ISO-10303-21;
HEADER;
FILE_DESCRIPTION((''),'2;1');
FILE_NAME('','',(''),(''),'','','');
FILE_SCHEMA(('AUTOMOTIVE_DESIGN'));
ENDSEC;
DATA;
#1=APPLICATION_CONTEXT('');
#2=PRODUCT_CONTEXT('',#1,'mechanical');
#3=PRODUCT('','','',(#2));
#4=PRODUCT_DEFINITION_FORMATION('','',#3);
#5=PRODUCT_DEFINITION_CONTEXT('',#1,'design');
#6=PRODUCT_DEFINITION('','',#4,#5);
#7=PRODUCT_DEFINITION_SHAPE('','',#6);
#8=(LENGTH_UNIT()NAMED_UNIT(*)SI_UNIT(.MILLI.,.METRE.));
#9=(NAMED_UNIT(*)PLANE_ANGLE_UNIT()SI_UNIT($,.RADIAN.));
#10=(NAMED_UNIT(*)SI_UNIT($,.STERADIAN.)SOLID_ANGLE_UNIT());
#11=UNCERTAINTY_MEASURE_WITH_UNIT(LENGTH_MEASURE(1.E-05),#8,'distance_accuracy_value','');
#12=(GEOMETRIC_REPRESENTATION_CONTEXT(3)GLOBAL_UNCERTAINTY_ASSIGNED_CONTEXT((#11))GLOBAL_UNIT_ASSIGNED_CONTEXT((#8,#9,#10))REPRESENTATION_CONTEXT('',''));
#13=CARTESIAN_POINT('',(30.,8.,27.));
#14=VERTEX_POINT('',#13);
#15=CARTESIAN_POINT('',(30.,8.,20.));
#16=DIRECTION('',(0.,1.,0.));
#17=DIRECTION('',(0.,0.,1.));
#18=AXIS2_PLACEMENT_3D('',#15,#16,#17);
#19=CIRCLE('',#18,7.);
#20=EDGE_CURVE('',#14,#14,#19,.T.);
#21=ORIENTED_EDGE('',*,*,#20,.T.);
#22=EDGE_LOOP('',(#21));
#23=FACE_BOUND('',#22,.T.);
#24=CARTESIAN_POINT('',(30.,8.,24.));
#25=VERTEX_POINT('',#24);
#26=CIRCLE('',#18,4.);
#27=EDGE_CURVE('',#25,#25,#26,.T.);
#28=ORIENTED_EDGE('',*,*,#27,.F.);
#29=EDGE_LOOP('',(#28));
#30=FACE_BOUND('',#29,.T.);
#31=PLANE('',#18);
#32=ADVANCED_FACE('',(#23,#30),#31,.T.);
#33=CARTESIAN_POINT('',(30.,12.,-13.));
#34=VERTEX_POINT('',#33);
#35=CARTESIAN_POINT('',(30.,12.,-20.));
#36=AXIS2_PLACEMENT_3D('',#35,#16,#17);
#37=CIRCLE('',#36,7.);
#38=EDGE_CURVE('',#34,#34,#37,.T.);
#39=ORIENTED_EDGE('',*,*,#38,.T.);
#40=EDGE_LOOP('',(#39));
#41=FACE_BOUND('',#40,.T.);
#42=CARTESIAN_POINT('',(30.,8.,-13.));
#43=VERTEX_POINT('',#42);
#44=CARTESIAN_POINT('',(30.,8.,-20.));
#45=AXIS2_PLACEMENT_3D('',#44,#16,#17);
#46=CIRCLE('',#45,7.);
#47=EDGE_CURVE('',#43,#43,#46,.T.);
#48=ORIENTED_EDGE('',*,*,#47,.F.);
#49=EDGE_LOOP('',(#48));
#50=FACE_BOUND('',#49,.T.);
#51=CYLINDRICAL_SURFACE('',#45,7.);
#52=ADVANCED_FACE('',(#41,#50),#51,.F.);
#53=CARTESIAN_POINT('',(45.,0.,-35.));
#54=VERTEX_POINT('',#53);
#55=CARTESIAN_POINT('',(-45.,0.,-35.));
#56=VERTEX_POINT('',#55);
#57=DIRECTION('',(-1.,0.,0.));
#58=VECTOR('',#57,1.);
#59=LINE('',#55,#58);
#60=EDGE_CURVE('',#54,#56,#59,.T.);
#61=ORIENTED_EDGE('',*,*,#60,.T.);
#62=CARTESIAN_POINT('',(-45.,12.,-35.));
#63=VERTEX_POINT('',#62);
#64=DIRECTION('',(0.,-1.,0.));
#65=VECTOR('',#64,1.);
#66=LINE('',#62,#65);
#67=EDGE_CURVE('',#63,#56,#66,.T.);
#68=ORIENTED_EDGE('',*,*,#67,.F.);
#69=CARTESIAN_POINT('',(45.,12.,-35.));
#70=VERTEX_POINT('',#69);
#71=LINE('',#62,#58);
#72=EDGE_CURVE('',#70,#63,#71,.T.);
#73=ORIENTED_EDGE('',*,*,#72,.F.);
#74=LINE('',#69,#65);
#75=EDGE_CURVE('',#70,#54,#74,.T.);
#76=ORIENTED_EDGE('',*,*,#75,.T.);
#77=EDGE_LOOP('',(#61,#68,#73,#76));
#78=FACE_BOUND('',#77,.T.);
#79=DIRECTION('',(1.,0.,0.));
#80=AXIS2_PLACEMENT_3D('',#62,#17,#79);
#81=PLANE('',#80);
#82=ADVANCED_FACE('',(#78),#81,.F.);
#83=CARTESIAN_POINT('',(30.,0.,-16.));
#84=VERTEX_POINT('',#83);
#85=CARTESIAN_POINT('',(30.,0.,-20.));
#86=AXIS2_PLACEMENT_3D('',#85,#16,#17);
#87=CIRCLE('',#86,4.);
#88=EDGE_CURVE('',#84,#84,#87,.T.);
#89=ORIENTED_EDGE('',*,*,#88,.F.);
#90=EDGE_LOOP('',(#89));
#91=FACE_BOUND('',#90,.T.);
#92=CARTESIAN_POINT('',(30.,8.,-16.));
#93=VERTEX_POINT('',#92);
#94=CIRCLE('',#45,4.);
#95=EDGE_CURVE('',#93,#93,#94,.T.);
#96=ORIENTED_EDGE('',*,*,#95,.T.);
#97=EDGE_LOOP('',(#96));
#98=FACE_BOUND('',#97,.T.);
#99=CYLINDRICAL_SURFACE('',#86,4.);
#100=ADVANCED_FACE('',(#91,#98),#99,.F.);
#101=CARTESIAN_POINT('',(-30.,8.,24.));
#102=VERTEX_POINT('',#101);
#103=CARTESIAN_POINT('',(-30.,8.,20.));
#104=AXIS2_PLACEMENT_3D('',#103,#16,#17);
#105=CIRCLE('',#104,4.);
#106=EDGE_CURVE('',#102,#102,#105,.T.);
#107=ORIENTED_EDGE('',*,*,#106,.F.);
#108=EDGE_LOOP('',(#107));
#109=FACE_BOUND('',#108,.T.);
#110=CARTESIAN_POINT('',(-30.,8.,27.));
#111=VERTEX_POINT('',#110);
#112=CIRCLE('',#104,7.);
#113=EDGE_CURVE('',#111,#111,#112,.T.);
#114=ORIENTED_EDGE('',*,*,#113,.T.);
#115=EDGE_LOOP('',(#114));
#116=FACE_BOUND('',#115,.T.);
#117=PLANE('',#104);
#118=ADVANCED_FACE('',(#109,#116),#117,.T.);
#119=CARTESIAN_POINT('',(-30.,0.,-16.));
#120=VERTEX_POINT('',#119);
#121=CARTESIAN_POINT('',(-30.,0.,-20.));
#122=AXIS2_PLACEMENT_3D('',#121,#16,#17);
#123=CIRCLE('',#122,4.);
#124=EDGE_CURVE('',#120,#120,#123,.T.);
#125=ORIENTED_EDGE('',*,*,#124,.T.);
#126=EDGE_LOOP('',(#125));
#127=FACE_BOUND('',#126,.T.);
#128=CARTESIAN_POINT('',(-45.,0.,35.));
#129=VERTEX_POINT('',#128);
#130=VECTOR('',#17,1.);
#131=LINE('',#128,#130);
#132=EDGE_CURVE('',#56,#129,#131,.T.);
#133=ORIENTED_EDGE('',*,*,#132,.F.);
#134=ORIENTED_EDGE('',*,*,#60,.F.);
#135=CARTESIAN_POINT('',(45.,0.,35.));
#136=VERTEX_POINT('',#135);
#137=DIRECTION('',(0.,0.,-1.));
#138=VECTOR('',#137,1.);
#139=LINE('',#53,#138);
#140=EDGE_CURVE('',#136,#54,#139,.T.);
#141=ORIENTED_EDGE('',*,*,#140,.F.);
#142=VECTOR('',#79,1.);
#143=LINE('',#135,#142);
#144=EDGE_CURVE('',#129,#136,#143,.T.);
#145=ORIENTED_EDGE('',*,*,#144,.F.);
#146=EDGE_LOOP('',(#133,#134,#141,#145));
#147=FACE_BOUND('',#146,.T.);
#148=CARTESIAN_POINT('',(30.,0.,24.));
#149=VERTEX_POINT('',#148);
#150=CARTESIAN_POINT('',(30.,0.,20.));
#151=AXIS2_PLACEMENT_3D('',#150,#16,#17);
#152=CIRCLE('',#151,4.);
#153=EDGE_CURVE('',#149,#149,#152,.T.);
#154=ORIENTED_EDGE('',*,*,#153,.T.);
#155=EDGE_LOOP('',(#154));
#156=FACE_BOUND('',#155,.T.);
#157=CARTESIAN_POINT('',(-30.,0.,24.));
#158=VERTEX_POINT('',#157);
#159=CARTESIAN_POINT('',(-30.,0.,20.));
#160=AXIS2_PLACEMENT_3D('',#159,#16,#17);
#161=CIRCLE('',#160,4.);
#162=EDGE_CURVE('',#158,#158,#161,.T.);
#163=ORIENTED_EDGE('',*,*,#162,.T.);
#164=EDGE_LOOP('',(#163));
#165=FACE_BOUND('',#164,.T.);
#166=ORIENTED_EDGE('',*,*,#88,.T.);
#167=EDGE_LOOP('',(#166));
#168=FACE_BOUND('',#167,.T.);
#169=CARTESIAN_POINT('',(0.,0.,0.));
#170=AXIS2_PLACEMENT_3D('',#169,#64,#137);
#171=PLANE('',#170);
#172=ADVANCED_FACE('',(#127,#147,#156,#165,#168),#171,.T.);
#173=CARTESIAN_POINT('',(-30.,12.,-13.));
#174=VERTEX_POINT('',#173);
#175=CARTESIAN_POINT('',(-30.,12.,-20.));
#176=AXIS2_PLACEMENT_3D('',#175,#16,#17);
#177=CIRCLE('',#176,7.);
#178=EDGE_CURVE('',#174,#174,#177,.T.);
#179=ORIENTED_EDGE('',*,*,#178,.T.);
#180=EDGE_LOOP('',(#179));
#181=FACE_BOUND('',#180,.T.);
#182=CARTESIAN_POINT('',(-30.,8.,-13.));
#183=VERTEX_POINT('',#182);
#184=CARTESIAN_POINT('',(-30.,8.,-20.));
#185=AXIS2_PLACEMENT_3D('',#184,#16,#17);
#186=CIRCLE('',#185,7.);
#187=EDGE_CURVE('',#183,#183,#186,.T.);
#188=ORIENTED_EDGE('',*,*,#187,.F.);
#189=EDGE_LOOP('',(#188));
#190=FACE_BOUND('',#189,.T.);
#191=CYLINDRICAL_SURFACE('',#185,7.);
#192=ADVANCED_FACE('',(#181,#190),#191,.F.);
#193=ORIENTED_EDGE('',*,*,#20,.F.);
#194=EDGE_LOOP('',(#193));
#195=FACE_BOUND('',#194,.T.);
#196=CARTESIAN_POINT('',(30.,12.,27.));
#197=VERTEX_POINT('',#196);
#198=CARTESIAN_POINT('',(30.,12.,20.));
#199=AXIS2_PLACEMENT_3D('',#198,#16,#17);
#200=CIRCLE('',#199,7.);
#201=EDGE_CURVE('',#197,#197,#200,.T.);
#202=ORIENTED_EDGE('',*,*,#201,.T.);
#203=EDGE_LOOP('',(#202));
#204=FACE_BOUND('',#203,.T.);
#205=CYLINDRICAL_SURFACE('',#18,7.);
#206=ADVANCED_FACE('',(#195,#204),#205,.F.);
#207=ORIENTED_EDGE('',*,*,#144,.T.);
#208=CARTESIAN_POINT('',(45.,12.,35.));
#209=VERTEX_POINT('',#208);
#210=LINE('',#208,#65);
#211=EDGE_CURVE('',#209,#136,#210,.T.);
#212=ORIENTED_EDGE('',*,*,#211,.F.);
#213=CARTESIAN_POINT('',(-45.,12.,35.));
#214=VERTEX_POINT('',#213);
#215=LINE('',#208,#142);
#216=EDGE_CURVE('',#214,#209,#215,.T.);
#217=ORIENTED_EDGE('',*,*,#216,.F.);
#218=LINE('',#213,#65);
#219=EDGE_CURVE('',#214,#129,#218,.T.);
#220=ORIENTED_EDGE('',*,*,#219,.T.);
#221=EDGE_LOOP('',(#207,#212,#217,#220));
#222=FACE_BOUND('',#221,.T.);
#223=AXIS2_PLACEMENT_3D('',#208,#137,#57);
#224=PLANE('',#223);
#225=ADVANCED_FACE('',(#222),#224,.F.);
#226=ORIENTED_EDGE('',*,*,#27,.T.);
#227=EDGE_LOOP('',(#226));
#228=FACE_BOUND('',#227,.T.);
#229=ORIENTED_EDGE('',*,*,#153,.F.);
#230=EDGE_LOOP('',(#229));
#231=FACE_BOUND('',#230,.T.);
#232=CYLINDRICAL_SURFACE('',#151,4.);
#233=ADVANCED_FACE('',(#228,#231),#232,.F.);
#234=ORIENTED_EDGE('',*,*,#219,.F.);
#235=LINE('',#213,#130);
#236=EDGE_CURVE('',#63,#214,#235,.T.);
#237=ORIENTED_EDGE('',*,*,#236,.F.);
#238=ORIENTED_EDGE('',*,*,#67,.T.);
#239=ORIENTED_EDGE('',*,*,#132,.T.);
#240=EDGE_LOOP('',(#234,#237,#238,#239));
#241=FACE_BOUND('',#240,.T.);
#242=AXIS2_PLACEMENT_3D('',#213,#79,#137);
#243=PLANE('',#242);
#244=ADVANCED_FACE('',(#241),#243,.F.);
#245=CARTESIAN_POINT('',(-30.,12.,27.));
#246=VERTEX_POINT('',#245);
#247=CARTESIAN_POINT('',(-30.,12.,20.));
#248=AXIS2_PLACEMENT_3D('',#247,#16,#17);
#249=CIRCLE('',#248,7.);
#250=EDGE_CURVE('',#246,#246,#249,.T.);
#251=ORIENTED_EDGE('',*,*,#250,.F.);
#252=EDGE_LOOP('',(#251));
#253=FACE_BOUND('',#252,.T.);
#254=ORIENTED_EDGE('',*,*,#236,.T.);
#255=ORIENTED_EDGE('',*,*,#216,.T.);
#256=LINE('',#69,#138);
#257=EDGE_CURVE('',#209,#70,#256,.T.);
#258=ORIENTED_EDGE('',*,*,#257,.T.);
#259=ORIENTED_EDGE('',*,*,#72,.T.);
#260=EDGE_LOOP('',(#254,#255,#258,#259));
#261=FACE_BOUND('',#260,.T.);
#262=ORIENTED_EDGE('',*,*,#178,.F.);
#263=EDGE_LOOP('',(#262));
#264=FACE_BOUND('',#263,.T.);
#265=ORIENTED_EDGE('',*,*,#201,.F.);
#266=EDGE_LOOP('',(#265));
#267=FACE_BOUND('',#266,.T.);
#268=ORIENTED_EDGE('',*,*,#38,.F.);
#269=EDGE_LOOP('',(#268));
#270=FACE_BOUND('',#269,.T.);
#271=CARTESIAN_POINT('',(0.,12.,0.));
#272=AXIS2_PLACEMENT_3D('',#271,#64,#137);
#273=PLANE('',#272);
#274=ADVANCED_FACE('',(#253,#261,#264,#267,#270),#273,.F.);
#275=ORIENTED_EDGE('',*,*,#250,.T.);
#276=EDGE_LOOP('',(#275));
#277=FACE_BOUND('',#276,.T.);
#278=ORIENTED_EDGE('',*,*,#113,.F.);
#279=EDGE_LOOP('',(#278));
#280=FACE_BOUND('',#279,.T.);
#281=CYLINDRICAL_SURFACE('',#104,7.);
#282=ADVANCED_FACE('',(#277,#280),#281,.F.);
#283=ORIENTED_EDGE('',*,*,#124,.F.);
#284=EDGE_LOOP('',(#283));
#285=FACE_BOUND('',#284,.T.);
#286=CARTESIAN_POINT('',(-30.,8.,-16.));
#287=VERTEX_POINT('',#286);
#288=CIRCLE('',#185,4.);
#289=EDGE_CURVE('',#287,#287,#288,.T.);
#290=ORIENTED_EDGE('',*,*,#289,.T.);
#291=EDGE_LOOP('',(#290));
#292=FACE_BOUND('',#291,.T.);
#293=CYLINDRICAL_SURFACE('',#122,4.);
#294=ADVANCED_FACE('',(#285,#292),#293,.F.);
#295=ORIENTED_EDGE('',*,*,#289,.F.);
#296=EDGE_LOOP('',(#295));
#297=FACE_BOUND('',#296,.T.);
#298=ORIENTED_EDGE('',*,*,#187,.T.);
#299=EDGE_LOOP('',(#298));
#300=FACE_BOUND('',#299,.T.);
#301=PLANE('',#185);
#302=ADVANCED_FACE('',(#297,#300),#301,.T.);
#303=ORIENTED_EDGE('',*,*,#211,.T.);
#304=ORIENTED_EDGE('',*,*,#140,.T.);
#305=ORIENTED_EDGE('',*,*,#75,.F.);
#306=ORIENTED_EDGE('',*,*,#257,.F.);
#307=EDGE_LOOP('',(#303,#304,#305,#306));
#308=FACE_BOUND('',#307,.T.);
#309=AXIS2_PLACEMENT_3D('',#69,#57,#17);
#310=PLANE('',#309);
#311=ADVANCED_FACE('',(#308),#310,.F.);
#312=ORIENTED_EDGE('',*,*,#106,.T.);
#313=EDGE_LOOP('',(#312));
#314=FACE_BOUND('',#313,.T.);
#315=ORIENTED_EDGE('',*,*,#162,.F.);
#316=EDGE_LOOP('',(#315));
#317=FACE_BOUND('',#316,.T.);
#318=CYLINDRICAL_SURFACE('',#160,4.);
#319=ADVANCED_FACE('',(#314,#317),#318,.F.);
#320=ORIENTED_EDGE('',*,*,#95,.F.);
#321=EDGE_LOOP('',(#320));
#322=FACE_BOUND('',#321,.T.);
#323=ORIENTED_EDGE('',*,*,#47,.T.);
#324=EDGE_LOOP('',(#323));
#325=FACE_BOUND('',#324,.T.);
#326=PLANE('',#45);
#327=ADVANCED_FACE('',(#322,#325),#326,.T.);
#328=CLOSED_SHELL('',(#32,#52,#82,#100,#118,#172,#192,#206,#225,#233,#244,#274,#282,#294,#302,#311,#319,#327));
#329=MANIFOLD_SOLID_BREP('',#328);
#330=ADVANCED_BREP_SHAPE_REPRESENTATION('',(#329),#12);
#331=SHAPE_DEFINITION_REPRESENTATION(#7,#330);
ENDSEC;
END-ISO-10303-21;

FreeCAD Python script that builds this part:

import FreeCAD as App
import Part
import Sketcher

V = App.Vector


def add_polygon(sketch, points):
    """Adds a closed chain of lines whose ends are joined by coincident constraints."""
    first, n = sketch.GeometryCount, len(points)
    for a, b in zip(points, points[1:] + points[:1]):
        sketch.addGeometry(Part.LineSegment(App.Vector(*a, 0), App.Vector(*b, 0)), False)
    for i in range(n):
        sketch.addConstraint(Sketcher.Constraint("Coincident", first + i, 2, first + (i + 1) % n, 1))

doc = App.newDocument("Part")
body = doc.addObject("PartDesign::Body", "Body")

# Sketch on XZ plane
sketch1 = body.newObject("Sketcher::SketchObject", "Sketch")
sketch1.AttachmentSupport = (doc.getObject("XZ_Plane"), [""])
sketch1.MapMode = "FlatFace"
add_polygon(sketch1, [(-45, -35), (-45, 35), (45, 35), (45, -35)])  # lines 0-3
sketch1.addConstraint(Sketcher.Constraint("Vertical", 0))
sketch1.addConstraint(Sketcher.Constraint("Horizontal", 1))
sketch1.addConstraint(Sketcher.Constraint("Vertical", 2))
sketch1.addConstraint(Sketcher.Constraint("Horizontal", 3))
sketch1.addConstraint(Sketcher.Constraint("Symmetric", 0, 2, 2, 2, -1, 1))
sketch1.addConstraint(Sketcher.Constraint("DistanceX", 1, 1, 1, 2, 90.0))
sketch1.addConstraint(Sketcher.Constraint("DistanceY", 0, 1, 0, 2, 70.0))
pad1 = body.newObject("PartDesign::Pad", "Pad")
pad1.Profile = sketch1
pad1.Length = 12
pad1.Reversed = True

# Sketch on XZ plane
sketch2 = body.newObject("Sketcher::SketchObject", "Sketch001")
sketch2.AttachmentSupport = (doc.getObject("XZ_Plane"), [""])
sketch2.MapMode = "FlatFace"
sketch2.AttachmentOffset = App.Placement(V(0, 0, -12), App.Rotation())
sketch2.addGeometry(Part.Circle(V(-30, -20, 0), V(0, 0, 1), 7), False)
sketch2.addGeometry(Part.Circle(V(30, -20, 0), V(0, 0, 1), 7), False)
sketch2.addGeometry(Part.Circle(V(-30, 20, 0), V(0, 0, 1), 7), False)
sketch2.addGeometry(Part.Circle(V(30, 20, 0), V(0, 0, 1), 7), False)
sketch2.addConstraint(Sketcher.Constraint("Equal", 0, 1))
sketch2.addConstraint(Sketcher.Constraint("Equal", 1, 2))
sketch2.addConstraint(Sketcher.Constraint("Equal", 2, 3))
sketch2.addConstraint(Sketcher.Constraint("Symmetric", 1, 3, 2, 3, -1, 1))
sketch2.addConstraint(Sketcher.Constraint("Symmetric", 0, 3, 3, 3, -1, 1))
sketch2.addConstraint(Sketcher.Constraint("Symmetric", 0, 3, 1, 3, -2))
sketch2.addConstraint(Sketcher.Constraint("Diameter", 0, 14.0))
sketch2.addConstraint(Sketcher.Constraint("DistanceX", 0, 3, -1, 1, 30.0))
sketch2.addConstraint(Sketcher.Constraint("DistanceY", 0, 3, -1, 1, 20.0))
pocket1 = body.newObject("PartDesign::Pocket", "Pocket")
pocket1.Profile = sketch2
pocket1.Length = 4
pocket1.Reversed = True

# Sketch on XZ plane
sketch3 = body.newObject("Sketcher::SketchObject", "Sketch002")
sketch3.AttachmentSupport = (doc.getObject("XZ_Plane"), [""])
sketch3.MapMode = "FlatFace"
sketch3.AttachmentOffset = App.Placement(V(0, 0, -12), App.Rotation())
sketch3.addGeometry(Part.Circle(V(-30, -20, 0), V(0, 0, 1), 4), False)
sketch3.addGeometry(Part.Circle(V(30, -20, 0), V(0, 0, 1), 4), False)
sketch3.addGeometry(Part.Circle(V(-30, 20, 0), V(0, 0, 1), 4), False)
sketch3.addGeometry(Part.Circle(V(30, 20, 0), V(0, 0, 1), 4), False)
sketch3.addConstraint(Sketcher.Constraint("Equal", 0, 1))
sketch3.addConstraint(Sketcher.Constraint("Equal", 1, 2))
sketch3.addConstraint(Sketcher.Constraint("Equal", 2, 3))
sketch3.addConstraint(Sketcher.Constraint("Symmetric", 1, 3, 2, 3, -1, 1))
sketch3.addConstraint(Sketcher.Constraint("Symmetric", 0, 3, 3, 3, -1, 1))
sketch3.addConstraint(Sketcher.Constraint("Symmetric", 0, 3, 1, 3, -2))
sketch3.addConstraint(Sketcher.Constraint("Diameter", 0, 8.0))
sketch3.addConstraint(Sketcher.Constraint("DistanceX", 0, 3, -1, 1, 30.0))
sketch3.addConstraint(Sketcher.Constraint("DistanceY", 0, 3, -1, 1, 20.0))
pocket2 = body.newObject("PartDesign::Pocket", "Pocket001")
pocket2.Profile = sketch3
pocket2.Type = "ThroughAll"
pocket2.Reversed = True

doc.recompute()
